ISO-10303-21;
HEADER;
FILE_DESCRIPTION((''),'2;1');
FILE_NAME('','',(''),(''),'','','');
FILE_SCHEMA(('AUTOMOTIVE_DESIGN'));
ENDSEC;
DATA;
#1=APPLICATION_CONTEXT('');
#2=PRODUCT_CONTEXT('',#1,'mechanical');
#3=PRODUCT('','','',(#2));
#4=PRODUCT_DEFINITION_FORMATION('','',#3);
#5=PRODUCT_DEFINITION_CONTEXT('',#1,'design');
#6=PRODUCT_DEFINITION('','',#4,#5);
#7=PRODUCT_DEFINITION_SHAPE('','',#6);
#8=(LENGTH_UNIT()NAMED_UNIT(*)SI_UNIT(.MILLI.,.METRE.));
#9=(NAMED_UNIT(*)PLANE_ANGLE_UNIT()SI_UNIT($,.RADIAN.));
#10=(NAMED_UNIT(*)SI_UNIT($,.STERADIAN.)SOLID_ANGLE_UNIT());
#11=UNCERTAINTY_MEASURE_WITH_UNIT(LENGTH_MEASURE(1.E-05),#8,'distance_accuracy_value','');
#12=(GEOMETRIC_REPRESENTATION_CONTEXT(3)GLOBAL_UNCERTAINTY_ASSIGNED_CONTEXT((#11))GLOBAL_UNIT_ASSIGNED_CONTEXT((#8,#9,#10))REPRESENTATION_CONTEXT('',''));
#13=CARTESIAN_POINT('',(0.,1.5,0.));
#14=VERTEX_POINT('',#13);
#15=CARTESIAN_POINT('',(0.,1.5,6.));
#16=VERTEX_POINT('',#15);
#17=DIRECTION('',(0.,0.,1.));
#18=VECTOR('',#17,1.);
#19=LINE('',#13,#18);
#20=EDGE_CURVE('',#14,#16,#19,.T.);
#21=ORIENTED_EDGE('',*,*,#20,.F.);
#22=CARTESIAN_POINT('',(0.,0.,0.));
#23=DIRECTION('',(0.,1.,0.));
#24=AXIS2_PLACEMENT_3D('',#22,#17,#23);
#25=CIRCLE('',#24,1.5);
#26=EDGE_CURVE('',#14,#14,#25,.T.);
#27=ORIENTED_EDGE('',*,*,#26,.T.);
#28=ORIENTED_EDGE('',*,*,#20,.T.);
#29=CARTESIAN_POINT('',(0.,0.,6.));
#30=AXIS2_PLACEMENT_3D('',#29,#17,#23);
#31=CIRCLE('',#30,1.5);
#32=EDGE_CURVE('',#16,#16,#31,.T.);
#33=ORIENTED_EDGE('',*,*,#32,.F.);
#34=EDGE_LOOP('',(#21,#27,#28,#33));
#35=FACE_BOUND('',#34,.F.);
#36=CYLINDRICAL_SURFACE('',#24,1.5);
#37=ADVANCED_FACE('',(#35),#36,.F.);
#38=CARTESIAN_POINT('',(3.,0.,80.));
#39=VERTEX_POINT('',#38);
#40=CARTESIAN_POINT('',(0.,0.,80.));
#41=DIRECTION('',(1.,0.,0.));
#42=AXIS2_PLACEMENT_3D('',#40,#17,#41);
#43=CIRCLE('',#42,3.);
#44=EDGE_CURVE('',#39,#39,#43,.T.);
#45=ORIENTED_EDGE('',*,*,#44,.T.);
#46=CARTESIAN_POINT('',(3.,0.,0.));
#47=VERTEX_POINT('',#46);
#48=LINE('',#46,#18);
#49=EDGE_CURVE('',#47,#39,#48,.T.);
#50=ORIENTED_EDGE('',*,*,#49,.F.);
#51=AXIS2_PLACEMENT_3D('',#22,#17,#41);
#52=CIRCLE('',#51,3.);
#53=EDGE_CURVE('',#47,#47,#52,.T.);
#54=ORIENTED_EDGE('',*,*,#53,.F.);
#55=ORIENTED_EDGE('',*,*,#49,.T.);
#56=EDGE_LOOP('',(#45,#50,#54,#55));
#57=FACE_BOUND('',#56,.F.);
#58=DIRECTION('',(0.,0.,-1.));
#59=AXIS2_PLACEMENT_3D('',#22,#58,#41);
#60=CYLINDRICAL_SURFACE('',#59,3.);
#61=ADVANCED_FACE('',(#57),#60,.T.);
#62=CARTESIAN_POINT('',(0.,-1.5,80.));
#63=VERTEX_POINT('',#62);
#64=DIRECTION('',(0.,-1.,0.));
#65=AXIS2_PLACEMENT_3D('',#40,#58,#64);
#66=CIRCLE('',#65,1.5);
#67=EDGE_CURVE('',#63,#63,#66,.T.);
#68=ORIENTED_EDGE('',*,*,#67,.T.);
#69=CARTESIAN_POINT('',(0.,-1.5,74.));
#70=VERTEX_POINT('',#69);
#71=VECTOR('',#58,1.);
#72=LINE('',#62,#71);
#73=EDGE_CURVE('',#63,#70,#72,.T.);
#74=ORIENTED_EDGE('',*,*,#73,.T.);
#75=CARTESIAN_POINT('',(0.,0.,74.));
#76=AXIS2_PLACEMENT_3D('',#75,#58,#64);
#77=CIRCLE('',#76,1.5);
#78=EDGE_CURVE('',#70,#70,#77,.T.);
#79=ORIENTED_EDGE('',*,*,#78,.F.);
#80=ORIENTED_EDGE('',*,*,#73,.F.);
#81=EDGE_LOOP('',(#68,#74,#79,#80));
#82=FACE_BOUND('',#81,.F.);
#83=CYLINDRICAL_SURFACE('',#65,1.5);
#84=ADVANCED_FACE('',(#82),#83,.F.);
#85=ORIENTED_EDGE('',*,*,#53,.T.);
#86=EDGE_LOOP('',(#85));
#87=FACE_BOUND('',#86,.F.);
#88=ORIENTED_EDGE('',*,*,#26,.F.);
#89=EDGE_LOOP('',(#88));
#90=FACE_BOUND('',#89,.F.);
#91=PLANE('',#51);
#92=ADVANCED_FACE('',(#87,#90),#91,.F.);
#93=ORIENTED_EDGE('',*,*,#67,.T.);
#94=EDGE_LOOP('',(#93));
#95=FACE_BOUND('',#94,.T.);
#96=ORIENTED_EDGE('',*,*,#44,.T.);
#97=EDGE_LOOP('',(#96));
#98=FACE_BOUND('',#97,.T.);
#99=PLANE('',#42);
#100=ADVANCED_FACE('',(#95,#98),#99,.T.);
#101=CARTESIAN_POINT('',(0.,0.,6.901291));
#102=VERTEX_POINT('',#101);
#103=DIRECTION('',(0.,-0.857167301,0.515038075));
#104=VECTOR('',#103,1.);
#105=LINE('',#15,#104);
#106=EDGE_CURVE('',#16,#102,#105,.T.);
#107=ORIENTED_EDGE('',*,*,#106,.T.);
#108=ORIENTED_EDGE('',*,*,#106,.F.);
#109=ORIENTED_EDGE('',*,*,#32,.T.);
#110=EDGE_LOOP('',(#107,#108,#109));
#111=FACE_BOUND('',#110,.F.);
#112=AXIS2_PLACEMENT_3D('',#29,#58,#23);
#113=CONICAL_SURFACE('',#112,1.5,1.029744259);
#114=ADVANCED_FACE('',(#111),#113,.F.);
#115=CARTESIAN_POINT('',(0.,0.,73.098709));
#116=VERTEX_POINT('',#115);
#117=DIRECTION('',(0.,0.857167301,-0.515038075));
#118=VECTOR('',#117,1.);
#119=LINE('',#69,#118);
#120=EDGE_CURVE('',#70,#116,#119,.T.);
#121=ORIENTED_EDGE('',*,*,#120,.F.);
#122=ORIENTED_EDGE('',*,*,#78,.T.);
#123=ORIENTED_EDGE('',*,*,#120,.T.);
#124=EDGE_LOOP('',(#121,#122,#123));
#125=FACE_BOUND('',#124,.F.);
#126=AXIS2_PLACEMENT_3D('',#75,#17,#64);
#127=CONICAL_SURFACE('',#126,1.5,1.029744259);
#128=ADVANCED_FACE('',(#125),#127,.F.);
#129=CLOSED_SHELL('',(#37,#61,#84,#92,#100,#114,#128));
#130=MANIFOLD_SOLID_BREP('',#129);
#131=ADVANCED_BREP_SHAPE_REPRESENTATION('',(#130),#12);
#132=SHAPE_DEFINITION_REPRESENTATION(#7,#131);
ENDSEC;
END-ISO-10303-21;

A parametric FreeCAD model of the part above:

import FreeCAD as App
import Part
import Sketcher

V = App.Vector

doc = App.newDocument("Part")
params = doc.addObject("Spreadsheet::Sheet", "Params")
for row, (alias, value) in enumerate([
    ("sketch1_diameter", "6 mm"),
    ("pad1_length", "80 mm"),
    ("pad2_length", "80 mm"),
    ("sketch3_diameter", "3 mm"),
    ("hole_diameter", "3 mm"),
    ("hole_depth", "6 mm"),
    ("sketch4_diameter", "3 mm"),
    ("hole2_diameter", "3 mm"),
    ("hole2_depth", "6 mm"),
], start=1):
    params.set(f"A{row}", alias)
    params.set(f"B{row}", "=" + value)
    params.setAlias(f"B{row}", alias)

body = doc.addObject("PartDesign::Body", "Body")

# Sketch on XY plane
sketch1 = doc.addObject("Sketcher::SketchObject", "Sketch")
body.addObject(sketch1)
sketch1.AttachmentSupport = (doc.XY_Plane, [""])
sketch1.MapMode = "FlatFace"
sketch1.addGeometry(Part.Circle(V(0, 0, 0), V(0, 0, 1), 3), False)
sketch1.addGeometry(Part.Circle(V(0, 0, 0), V(0, 0, 1), 1.5), False)
sketch1.addConstraint(Sketcher.Constraint("Coincident", 0, 3, -1, 1))
sketch1.addConstraint(Sketcher.Constraint("Coincident", 1, 3, -1, 1))
sketch1.addConstraint(Sketcher.Constraint("Diameter", 0, 6.0))
sketch1.addConstraint(Sketcher.Constraint("Diameter", 1, 3.001))
sketch1.setExpression("Constraints[2]", "Params.sketch1_diameter")
pad1 = doc.addObject("PartDesign::Pad", "Pad")
body.addObject(pad1)
pad1.Profile = sketch1
pad1.setExpression("Length", "Params.pad1_length")

# Sketch on XY plane
sketch2 = doc.addObject("Sketcher::SketchObject", "Sketch001")
body.addObject(sketch2)
sketch2.AttachmentSupport = (doc.XY_Plane, [""])
sketch2.MapMode = "FlatFace"
sketch2.AttachmentOffset = App.Placement(V(0, 0, 80), App.Rotation())
sketch2.addGeometry(Part.Circle(V(0, 0, 0), V(0, 0, 1), 1.5), False)
sketch2.addConstraint(Sketcher.Constraint("Coincident", 0, 3, -1, 1))
sketch2.addConstraint(Sketcher.Constraint("Diameter", 0, 3.001))
pad2 = doc.addObject("PartDesign::Pad", "Pad001")
body.addObject(pad2)
pad2.Profile = sketch2
pad2.setExpression("Length", "Params.pad2_length")
pad2.Reversed = True

# Sketch on XY plane
sketch3 = doc.addObject("Sketcher::SketchObject", "Sketch002")
body.addObject(sketch3)
sketch3.AttachmentSupport = (doc.XY_Plane, [""])
sketch3.MapMode = "FlatFace"
sketch3.AttachmentOffset = App.Placement(V(0, 0, 80), App.Rotation())
sketch3.addGeometry(Part.Circle(V(0, 0, 0), V(0, 0, 1), 1.5), False)
sketch3.addConstraint(Sketcher.Constraint("Coincident", 0, 3, -1, 1))
sketch3.addConstraint(Sketcher.Constraint("Diameter", 0, 3.0))
sketch3.setExpression("Constraints[1]", "Params.sketch3_diameter")
doc.recompute()
hole = doc.addObject("PartDesign::Hole", "Hole")
body.addObject(hole)
hole.Profile = sketch3
hole.ThreadType = "None"
hole.setExpression("Diameter", "Params.hole_diameter")
hole.DepthType = "Dimension"
hole.setExpression("Depth", "Params.hole_depth")
hole.DrillPoint = "Angled"
hole.DrillPointAngle = 118

# Sketch on XY plane
sketch4 = doc.addObject("Sketcher::SketchObject", "Sketch003")
body.addObject(sketch4)
sketch4.AttachmentSupport = (doc.XY_Plane, [""])
sketch4.MapMode = "FlatFace"
sketch4.addGeometry(Part.Circle(V(0, 0, 0), V(0, 0, 1), 1.5), False)
sketch4.addConstraint(Sketcher.Constraint("Coincident", 0, 3, -1, 1))
sketch4.addConstraint(Sketcher.Constraint("Diameter", 0, 3.0))
sketch4.setExpression("Constraints[1]", "Params.sketch4_diameter")
doc.recompute()
hole2 = doc.addObject("PartDesign::Hole", "Hole001")
body.addObject(hole2)
hole2.Profile = sketch4
hole2.ThreadType = "None"
hole2.setExpression("Diameter", "Params.hole2_diameter")
hole2.DepthType = "Dimension"
hole2.setExpression("Depth", "Params.hole2_depth")
hole2.DrillPoint = "Angled"
hole2.DrillPointAngle = 118
hole2.Reversed = True

doc.recompute()
